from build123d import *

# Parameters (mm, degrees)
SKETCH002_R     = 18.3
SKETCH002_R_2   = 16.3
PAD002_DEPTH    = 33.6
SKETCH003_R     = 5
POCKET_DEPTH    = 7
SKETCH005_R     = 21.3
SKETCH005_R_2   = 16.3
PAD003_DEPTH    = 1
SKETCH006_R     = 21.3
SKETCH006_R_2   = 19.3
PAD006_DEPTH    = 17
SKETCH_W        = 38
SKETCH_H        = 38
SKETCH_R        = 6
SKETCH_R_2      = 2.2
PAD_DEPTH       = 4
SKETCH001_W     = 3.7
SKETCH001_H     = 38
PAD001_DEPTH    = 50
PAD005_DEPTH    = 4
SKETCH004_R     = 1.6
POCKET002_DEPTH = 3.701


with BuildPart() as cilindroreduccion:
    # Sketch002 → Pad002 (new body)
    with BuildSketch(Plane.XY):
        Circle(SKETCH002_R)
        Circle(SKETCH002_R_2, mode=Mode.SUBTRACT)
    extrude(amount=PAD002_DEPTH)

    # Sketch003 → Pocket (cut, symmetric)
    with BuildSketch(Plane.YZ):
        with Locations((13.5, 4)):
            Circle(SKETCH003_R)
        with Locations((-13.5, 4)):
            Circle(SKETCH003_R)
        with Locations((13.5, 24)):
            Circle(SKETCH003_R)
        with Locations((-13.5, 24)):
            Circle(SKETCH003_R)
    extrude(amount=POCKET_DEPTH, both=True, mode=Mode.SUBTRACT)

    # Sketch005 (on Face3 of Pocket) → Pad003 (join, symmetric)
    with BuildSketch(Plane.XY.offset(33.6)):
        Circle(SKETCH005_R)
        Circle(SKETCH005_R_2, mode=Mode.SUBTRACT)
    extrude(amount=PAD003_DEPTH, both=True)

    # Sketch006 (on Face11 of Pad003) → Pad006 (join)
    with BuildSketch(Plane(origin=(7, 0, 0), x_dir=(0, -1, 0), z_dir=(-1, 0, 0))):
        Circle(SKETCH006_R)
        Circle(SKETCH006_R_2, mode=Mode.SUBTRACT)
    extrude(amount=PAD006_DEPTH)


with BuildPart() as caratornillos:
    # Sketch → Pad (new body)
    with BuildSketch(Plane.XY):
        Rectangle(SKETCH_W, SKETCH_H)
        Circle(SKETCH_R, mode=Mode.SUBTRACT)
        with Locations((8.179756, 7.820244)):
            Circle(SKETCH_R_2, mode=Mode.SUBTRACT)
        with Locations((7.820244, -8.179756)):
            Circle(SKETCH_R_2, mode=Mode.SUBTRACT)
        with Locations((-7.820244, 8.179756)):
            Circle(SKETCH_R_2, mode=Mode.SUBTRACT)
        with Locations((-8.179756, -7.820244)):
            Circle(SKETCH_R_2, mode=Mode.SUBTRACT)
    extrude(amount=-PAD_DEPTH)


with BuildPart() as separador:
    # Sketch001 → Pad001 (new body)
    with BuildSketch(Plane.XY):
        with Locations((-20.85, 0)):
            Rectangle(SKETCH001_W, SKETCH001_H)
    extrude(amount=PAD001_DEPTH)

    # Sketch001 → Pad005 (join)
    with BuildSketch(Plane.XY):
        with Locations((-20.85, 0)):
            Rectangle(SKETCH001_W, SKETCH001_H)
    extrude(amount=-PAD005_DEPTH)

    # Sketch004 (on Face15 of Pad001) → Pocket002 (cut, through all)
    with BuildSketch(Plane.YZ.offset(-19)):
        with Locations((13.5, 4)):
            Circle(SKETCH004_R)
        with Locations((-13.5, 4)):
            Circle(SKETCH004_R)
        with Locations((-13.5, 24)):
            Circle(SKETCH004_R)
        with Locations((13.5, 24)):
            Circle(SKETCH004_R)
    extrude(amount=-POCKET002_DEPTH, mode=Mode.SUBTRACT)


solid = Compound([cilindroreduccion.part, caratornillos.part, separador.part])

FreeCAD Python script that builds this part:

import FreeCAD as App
import Part
import Sketcher


def add_polygon(sketch, points):
    """Adds a closed chain of lines whose ends are joined by coincident constraints."""
    first, n = sketch.GeometryCount, len(points)
    for a, b in zip(points, points[1:] + points[:1]):
        sketch.addGeometry(Part.LineSegment(App.Vector(*a, 0), App.Vector(*b, 0)), False)
    for i in range(n):
        sketch.addConstraint(Sketcher.Constraint("Coincident", first + i, 2, first + (i + 1) % n, 1))

doc = App.newDocument("Part")
params = doc.addObject("Spreadsheet::Sheet", "Params")
for row, (alias, value) in enumerate([
    ("sketch1_diameter", "36.6 mm"),
    ("sketch1_diameter2", "32.6 mm"),
    ("pad1_length", "33.6 mm"),
    ("sketch2_diameter", "10 mm"),
    ("pocket1_length", "14 mm"),
    ("sketch3_diameter", "42.6 mm"),
    ("sketch3_diameter2", "32.6 mm"),
    ("pad2_length", "2 mm"),
    ("sketch4_diameter", "42.6 mm"),
    ("sketch4_diameter2", "38.6 mm"),
    ("pad3_length", "17 mm"),
    ("sketch5_diameter", "12 mm"),
    ("sketch5_diameter2", "4.4 mm"),
    ("sketch5_width", "38 mm"),
    ("pad4_length", "4 mm"),
    ("sketch6_height", "38 mm"),
    ("sketch6_width", "3.7 mm"),
    ("pad5_length", "50 mm"),
    ("sketch7_height", "38 mm"),
    ("sketch7_width", "3.7 mm"),
    ("pad6_length", "4 mm"),
    ("sketch8_diameter", "3.2 mm"),
], start=1):
    params.set(f"A{row}", alias)
    params.set(f"B{row}", "=" + value)
    params.setAlias(f"B{row}", alias)

body = doc.addObject("PartDesign::Body", "Body")

# Sketch on XY plane
sketch1 = body.newObject("Sketcher::SketchObject", "Sketch")
sketch1.AttachmentSupport = (doc.getObject("XY_Plane"), [""])
sketch1.MapMode = "FlatFace"
sketch1.addGeometry(Part.Circle(App.Vector(0, 0, 0), App.Vector(0, 0, 1), 18.3), False)
sketch1.addGeometry(Part.Circle(App.Vector(0, 0, 0), App.Vector(0, 0, 1), 16.3), False)
sketch1.addConstraint(Sketcher.Constraint("Coincident", 0, 3, -1, 1))
sketch1.addConstraint(Sketcher.Constraint("Coincident", 1, 3, -1, 1))
sketch1.addConstraint(Sketcher.Constraint("Diameter", 0, 36.6))
sketch1.addConstraint(Sketcher.Constraint("Diameter", 1, 32.6))
sketch1.setExpression("Constraints[2]", "Params.sketch1_diameter")
sketch1.setExpression("Constraints[3]", "Params.sketch1_diameter2")
pad1 = body.newObject("PartDesign::Pad", "Pad")
pad1.Profile = sketch1
pad1.setExpression("Length", "Params.pad1_length")

# Sketch on YZ plane
sketch2 = body.newObject("Sketcher::SketchObject", "Sketch001")
sketch2.AttachmentSupport = (doc.getObject("YZ_Plane"), [""])
sketch2.MapMode = "FlatFace"
sketch2.addGeometry(Part.Circle(App.Vector(13.5, 4, 0), App.Vector(0, 0, 1), 5), False)
sketch2.addGeometry(Part.Circle(App.Vector(-13.5, 4, 0), App.Vector(0, 0, 1), 5), False)
sketch2.addGeometry(Part.Circle(App.Vector(13.5, 24, 0), App.Vector(0, 0, 1), 5), False)
sketch2.addGeometry(Part.Circle(App.Vector(-13.5, 24, 0), App.Vector(0, 0, 1), 5), False)
sketch2.addConstraint(Sketcher.Constraint("Equal", 0, 1))
sketch2.addConstraint(Sketcher.Constraint("Equal", 1, 2))
sketch2.addConstraint(Sketcher.Constraint("Equal", 2, 3))
sketch2.addConstraint(Sketcher.Constraint("Symmetric", 0, 3, 1, 3, -2))
sketch2.addConstraint(Sketcher.Constraint("Symmetric", 2, 3, 3, 3, -2))
sketch2.addConstraint(Sketcher.Constraint("Vertical", 0, 3, 2, 3))
sketch2.addConstraint(Sketcher.Constraint("Diameter", 0, 10.0))
sketch2.addConstraint(Sketcher.Constraint("DistanceY", -1, 1, 0, 3, 4.0))
sketch2.addConstraint(Sketcher.Constraint("DistanceY", -1, 1, 2, 3, 24.0))
sketch2.addConstraint(Sketcher.Constraint("DistanceX", 1, 3, 0, 3, 27.0))
sketch2.setExpression("Constraints[6]", "Params.sketch2_diameter")
pocket1 = body.newObject("PartDesign::Pocket", "Pocket")
pocket1.Profile = sketch2
pocket1.setExpression("Length", "Params.pocket1_length")
pocket1.Midplane = True

# Sketch on XY plane
sketch3 = body.newObject("Sketcher::SketchObject", "Sketch002")
sketch3.AttachmentSupport = (doc.getObject("XY_Plane"), [""])
sketch3.MapMode = "FlatFace"
sketch3.AttachmentOffset = App.Placement(App.Vector(0, 0, 33.6), App.Rotation())
sketch3.addGeometry(Part.Circle(App.Vector(0, 0, 0), App.Vector(0, 0, 1), 21.3), False)
sketch3.addGeometry(Part.Circle(App.Vector(0, 0, 0), App.Vector(0, 0, 1), 16.3), False)
sketch3.addConstraint(Sketcher.Constraint("Coincident", 0, 3, -1, 1))
sketch3.addConstraint(Sketcher.Constraint("Coincident", 1, 3, -1, 1))
sketch3.addConstraint(Sketcher.Constraint("Diameter", 0, 42.6))
sketch3.addConstraint(Sketcher.Constraint("Diameter", 1, 32.6))
sketch3.setExpression("Constraints[2]", "Params.sketch3_diameter")
sketch3.setExpression("Constraints[3]", "Params.sketch3_diameter2")
pad2 = body.newObject("PartDesign::Pad", "Pad001")
pad2.Profile = sketch3
pad2.setExpression("Length", "Params.pad2_length")
pad2.Midplane = True

# Sketch on YZ plane
sketch4 = body.newObject("Sketcher::SketchObject", "Sketch003")
sketch4.AttachmentSupport = (doc.getObject("YZ_Plane"), [""])
sketch4.MapMode = "FlatFace"
sketch4.AttachmentOffset = App.Placement(App.Vector(0, 0, 7), App.Rotation())
sketch4.addGeometry(Part.Circle(App.Vector(0, 0, 0), App.Vector(0, 0, 1), 21.3), False)
sketch4.addGeometry(Part.Circle(App.Vector(0, 0, 0), App.Vector(0, 0, 1), 19.3), False)
sketch4.addConstraint(Sketcher.Constraint("Coincident", 0, 3, -1, 1))
sketch4.addConstraint(Sketcher.Constraint("Coincident", 1, 3, -1, 1))
sketch4.addConstraint(Sketcher.Constraint("Diameter", 0, 42.6))
sketch4.addConstraint(Sketcher.Constraint("Diameter", 1, 38.6))
sketch4.setExpression("Constraints[2]", "Params.sketch4_diameter")
sketch4.setExpression("Constraints[3]", "Params.sketch4_diameter2")
pad3 = body.newObject("PartDesign::Pad", "Pad002")
pad3.Profile = sketch4
pad3.setExpression("Length", "Params.pad3_length")
pad3.Reversed = True
body2 = doc.addObject("PartDesign::Body", "Body001")

# Sketch on XY plane
sketch5 = body2.newObject("Sketcher::SketchObject", "Sketch004")
sketch5.AttachmentSupport = (doc.getObject("XY_Plane001"), [""])
sketch5.MapMode = "FlatFace"
add_polygon(sketch5, [(-19, 19), (-19, -19), (19, -19), (19, 19)])  # lines 0-3
sketch5.addGeometry(Part.Circle(App.Vector(-8.179756, -7.820244, 0), App.Vector(0, 0, 1), 2.2), False)  # 4
sketch5.addGeometry(Part.Circle(App.Vector(7.820244, -8.179756, 0), App.Vector(0, 0, 1), 2.2), False)  # 5
sketch5.addGeometry(Part.Circle(App.Vector(-7.820244, 8.179756, 0), App.Vector(0, 0, 1), 2.2), False)  # 6
sketch5.addGeometry(Part.Circle(App.Vector(0, 0, 0), App.Vector(0, 0, 1), 6), False)  # 7
sketch5.addGeometry(Part.Circle(App.Vector(8.179756, 7.820244, 0), App.Vector(0, 0, 1), 2.2), False)  # 8
sketch5.addConstraint(Sketcher.Constraint("Vertical", 0))
sketch5.addConstraint(Sketcher.Constraint("Horizontal", 1))
sketch5.addConstraint(Sketcher.Constraint("Vertical", 2))
sketch5.addConstraint(Sketcher.Constraint("Horizontal", 3))
sketch5.addConstraint(Sketcher.Constraint("Coincident", 7, 3, -1, 1))
sketch5.addConstraint(Sketcher.Constraint("Equal", 4, 5))
sketch5.addConstraint(Sketcher.Constraint("Equal", 5, 6))
sketch5.addConstraint(Sketcher.Constraint("Equal", 6, 8))
sketch5.addConstraint(Sketcher.Constraint("Symmetric", 5, 3, 6, 3, -1, 1))
sketch5.addConstraint(Sketcher.Constraint("Symmetric", 4, 3, 8, 3, -1, 1))
sketch5.addConstraint(Sketcher.Constraint("Symmetric", 0, 2, 2, 2, -1, 1))
sketch5.addConstraint(Sketcher.Constraint("Equal", 3, 0))
sketch5.addConstraint(Sketcher.Constraint("Diameter", 7, 12.0))
sketch5.addConstraint(Sketcher.Constraint("Diameter", 4, 4.4))
sketch5.addConstraint(Sketcher.Constraint("DistanceX", 1, 1, 1, 2, 38.0))
sketch5.addConstraint(Sketcher.Constraint("DistanceX", 4, 3, 5, 3, 16.0))
sketch5.addConstraint(Sketcher.Constraint("DistanceY", 4, 3, 6, 3, 16.0))
sketch5.addConstraint(Sketcher.Constraint("DistanceY", 5, 3, 4, 3, 0.359512))
sketch5.addConstraint(Sketcher.Constraint("DistanceX", 4, 3, 6, 3, 0.359512))
sketch5.setExpression("Constraints[16]", "Params.sketch5_diameter")
sketch5.setExpression("Constraints[17]", "Params.sketch5_diameter2")
sketch5.setExpression("Constraints[18]", "Params.sketch5_width")
pad4 = body2.newObject("PartDesign::Pad", "Pad003")
pad4.Profile = sketch5
pad4.setExpression("Length", "Params.pad4_length")
pad4.Reversed = True
body3 = doc.addObject("PartDesign::Body", "Body002")

# Sketch on XY plane
sketch6 = body3.newObject("Sketcher::SketchObject", "Sketch005")
sketch6.AttachmentSupport = (doc.getObject("XY_Plane002"), [""])
sketch6.MapMode = "FlatFace"
add_polygon(sketch6, [(-22.7, 19), (-22.7, -19), (-19, -19), (-19, 19)])  # lines 0-3
sketch6.addConstraint(Sketcher.Constraint("Vertical", 0))
sketch6.addConstraint(Sketcher.Constraint("Horizontal", 1))
sketch6.addConstraint(Sketcher.Constraint("Vertical", 2))
sketch6.addConstraint(Sketcher.Constraint("Horizontal", 3))
sketch6.addConstraint(Sketcher.Constraint("DistanceY", 0, 2, 0, 1, 38.0))
sketch6.addConstraint(Sketcher.Constraint("DistanceX", 1, 1, 1, 2, 3.7))
sketch6.addConstraint(Sketcher.Constraint("DistanceY", 0, 2, -1, 1, 19.0))
sketch6.addConstraint(Sketcher.Constraint("DistanceX", 1, 2, -1, 1, 19.0))
sketch6.setExpression("Constraints[8]", "Params.sketch6_height")
sketch6.setExpression("Constraints[9]", "Params.sketch6_width")
pad5 = body3.newObject("PartDesign::Pad", "Pad004")
pad5.Profile = sketch6
pad5.setExpression("Length", "Params.pad5_length")

# Sketch on XY plane
sketch7 = body3.newObject("Sketcher::SketchObject", "Sketch006")
sketch7.AttachmentSupport = (doc.getObject("XY_Plane002"), [""])
sketch7.MapMode = "FlatFace"
add_polygon(sketch7, [(-22.7, 19), (-22.7, -19), (-19, -19), (-19, 19)])  # lines 0-3
sketch7.addConstraint(Sketcher.Constraint("Vertical", 0))
sketch7.addConstraint(Sketcher.Constraint("Horizontal", 1))
sketch7.addConstraint(Sketcher.Constraint("Vertical", 2))
sketch7.addConstraint(Sketcher.Constraint("Horizontal", 3))
sketch7.addConstraint(Sketcher.Constraint("DistanceY", 0, 2, 0, 1, 38.0))
sketch7.addConstraint(Sketcher.Constraint("DistanceX", 1, 1, 1, 2, 3.7))
sketch7.addConstraint(Sketcher.Constraint("DistanceY", 0, 2, -1, 1, 19.0))
sketch7.addConstraint(Sketcher.Constraint("DistanceX", 1, 2, -1, 1, 19.0))
sketch7.setExpression("Constraints[8]", "Params.sketch7_height")
sketch7.setExpression("Constraints[9]", "Params.sketch7_width")
pad6 = body3.newObject("PartDesign::Pad", "Pad005")
pad6.Profile = sketch7
pad6.setExpression("Length", "Params.pad6_length")
pad6.Reversed = True

# Sketch on YZ plane
sketch8 = body3.newObject("Sketcher::SketchObject", "Sketch007")
sketch8.AttachmentSupport = (doc.getObject("YZ_Plane002"), [""])
sketch8.MapMode = "FlatFace"
sketch8.AttachmentOffset = App.Placement(App.Vector(0, 0, -19), App.Rotation())
sketch8.addGeometry(Part.Circle(App.Vector(13.5, 4, 0), App.Vector(0, 0, 1), 1.6), False)
sketch8.addGeometry(Part.Circle(App.Vector(-13.5, 4, 0), App.Vector(0, 0, 1), 1.6), False)
sketch8.addGeometry(Part.Circle(App.Vector(-13.5, 24, 0), App.Vector(0, 0, 1), 1.6), False)
sketch8.addGeometry(Part.Circle(App.Vector(13.5, 24, 0), App.Vector(0, 0, 1), 1.6), False)
sketch8.addConstraint(Sketcher.Constraint("Equal", 0, 1))
sketch8.addConstraint(Sketcher.Constraint("Equal", 1, 2))
sketch8.addConstraint(Sketcher.Constraint("Equal", 2, 3))
sketch8.addConstraint(Sketcher.Constraint("Symmetric", 0, 3, 1, 3, -2))
sketch8.addConstraint(Sketcher.Constraint("Symmetric", 2, 3, 3, 3, -2))
sketch8.addConstraint(Sketcher.Constraint("Vertical", 1, 3, 2, 3))
sketch8.addConstraint(Sketcher.Constraint("Diameter", 0, 3.2))
sketch8.addConstraint(Sketcher.Constraint("DistanceY", -1, 1, 0, 3, 4.0))
sketch8.addConstraint(Sketcher.Constraint("DistanceY", -1, 1, 2, 3, 24.0))
sketch8.addConstraint(Sketcher.Constraint("DistanceX", 1, 3, 0, 3, 27.0))
sketch8.setExpression("Constraints[6]", "Params.sketch8_diameter")
pocket2 = body3.newObject("PartDesign::Pocket", "Pocket001")
pocket2.Profile = sketch8
pocket2.Type = "ThroughAll"

doc.recompute()
